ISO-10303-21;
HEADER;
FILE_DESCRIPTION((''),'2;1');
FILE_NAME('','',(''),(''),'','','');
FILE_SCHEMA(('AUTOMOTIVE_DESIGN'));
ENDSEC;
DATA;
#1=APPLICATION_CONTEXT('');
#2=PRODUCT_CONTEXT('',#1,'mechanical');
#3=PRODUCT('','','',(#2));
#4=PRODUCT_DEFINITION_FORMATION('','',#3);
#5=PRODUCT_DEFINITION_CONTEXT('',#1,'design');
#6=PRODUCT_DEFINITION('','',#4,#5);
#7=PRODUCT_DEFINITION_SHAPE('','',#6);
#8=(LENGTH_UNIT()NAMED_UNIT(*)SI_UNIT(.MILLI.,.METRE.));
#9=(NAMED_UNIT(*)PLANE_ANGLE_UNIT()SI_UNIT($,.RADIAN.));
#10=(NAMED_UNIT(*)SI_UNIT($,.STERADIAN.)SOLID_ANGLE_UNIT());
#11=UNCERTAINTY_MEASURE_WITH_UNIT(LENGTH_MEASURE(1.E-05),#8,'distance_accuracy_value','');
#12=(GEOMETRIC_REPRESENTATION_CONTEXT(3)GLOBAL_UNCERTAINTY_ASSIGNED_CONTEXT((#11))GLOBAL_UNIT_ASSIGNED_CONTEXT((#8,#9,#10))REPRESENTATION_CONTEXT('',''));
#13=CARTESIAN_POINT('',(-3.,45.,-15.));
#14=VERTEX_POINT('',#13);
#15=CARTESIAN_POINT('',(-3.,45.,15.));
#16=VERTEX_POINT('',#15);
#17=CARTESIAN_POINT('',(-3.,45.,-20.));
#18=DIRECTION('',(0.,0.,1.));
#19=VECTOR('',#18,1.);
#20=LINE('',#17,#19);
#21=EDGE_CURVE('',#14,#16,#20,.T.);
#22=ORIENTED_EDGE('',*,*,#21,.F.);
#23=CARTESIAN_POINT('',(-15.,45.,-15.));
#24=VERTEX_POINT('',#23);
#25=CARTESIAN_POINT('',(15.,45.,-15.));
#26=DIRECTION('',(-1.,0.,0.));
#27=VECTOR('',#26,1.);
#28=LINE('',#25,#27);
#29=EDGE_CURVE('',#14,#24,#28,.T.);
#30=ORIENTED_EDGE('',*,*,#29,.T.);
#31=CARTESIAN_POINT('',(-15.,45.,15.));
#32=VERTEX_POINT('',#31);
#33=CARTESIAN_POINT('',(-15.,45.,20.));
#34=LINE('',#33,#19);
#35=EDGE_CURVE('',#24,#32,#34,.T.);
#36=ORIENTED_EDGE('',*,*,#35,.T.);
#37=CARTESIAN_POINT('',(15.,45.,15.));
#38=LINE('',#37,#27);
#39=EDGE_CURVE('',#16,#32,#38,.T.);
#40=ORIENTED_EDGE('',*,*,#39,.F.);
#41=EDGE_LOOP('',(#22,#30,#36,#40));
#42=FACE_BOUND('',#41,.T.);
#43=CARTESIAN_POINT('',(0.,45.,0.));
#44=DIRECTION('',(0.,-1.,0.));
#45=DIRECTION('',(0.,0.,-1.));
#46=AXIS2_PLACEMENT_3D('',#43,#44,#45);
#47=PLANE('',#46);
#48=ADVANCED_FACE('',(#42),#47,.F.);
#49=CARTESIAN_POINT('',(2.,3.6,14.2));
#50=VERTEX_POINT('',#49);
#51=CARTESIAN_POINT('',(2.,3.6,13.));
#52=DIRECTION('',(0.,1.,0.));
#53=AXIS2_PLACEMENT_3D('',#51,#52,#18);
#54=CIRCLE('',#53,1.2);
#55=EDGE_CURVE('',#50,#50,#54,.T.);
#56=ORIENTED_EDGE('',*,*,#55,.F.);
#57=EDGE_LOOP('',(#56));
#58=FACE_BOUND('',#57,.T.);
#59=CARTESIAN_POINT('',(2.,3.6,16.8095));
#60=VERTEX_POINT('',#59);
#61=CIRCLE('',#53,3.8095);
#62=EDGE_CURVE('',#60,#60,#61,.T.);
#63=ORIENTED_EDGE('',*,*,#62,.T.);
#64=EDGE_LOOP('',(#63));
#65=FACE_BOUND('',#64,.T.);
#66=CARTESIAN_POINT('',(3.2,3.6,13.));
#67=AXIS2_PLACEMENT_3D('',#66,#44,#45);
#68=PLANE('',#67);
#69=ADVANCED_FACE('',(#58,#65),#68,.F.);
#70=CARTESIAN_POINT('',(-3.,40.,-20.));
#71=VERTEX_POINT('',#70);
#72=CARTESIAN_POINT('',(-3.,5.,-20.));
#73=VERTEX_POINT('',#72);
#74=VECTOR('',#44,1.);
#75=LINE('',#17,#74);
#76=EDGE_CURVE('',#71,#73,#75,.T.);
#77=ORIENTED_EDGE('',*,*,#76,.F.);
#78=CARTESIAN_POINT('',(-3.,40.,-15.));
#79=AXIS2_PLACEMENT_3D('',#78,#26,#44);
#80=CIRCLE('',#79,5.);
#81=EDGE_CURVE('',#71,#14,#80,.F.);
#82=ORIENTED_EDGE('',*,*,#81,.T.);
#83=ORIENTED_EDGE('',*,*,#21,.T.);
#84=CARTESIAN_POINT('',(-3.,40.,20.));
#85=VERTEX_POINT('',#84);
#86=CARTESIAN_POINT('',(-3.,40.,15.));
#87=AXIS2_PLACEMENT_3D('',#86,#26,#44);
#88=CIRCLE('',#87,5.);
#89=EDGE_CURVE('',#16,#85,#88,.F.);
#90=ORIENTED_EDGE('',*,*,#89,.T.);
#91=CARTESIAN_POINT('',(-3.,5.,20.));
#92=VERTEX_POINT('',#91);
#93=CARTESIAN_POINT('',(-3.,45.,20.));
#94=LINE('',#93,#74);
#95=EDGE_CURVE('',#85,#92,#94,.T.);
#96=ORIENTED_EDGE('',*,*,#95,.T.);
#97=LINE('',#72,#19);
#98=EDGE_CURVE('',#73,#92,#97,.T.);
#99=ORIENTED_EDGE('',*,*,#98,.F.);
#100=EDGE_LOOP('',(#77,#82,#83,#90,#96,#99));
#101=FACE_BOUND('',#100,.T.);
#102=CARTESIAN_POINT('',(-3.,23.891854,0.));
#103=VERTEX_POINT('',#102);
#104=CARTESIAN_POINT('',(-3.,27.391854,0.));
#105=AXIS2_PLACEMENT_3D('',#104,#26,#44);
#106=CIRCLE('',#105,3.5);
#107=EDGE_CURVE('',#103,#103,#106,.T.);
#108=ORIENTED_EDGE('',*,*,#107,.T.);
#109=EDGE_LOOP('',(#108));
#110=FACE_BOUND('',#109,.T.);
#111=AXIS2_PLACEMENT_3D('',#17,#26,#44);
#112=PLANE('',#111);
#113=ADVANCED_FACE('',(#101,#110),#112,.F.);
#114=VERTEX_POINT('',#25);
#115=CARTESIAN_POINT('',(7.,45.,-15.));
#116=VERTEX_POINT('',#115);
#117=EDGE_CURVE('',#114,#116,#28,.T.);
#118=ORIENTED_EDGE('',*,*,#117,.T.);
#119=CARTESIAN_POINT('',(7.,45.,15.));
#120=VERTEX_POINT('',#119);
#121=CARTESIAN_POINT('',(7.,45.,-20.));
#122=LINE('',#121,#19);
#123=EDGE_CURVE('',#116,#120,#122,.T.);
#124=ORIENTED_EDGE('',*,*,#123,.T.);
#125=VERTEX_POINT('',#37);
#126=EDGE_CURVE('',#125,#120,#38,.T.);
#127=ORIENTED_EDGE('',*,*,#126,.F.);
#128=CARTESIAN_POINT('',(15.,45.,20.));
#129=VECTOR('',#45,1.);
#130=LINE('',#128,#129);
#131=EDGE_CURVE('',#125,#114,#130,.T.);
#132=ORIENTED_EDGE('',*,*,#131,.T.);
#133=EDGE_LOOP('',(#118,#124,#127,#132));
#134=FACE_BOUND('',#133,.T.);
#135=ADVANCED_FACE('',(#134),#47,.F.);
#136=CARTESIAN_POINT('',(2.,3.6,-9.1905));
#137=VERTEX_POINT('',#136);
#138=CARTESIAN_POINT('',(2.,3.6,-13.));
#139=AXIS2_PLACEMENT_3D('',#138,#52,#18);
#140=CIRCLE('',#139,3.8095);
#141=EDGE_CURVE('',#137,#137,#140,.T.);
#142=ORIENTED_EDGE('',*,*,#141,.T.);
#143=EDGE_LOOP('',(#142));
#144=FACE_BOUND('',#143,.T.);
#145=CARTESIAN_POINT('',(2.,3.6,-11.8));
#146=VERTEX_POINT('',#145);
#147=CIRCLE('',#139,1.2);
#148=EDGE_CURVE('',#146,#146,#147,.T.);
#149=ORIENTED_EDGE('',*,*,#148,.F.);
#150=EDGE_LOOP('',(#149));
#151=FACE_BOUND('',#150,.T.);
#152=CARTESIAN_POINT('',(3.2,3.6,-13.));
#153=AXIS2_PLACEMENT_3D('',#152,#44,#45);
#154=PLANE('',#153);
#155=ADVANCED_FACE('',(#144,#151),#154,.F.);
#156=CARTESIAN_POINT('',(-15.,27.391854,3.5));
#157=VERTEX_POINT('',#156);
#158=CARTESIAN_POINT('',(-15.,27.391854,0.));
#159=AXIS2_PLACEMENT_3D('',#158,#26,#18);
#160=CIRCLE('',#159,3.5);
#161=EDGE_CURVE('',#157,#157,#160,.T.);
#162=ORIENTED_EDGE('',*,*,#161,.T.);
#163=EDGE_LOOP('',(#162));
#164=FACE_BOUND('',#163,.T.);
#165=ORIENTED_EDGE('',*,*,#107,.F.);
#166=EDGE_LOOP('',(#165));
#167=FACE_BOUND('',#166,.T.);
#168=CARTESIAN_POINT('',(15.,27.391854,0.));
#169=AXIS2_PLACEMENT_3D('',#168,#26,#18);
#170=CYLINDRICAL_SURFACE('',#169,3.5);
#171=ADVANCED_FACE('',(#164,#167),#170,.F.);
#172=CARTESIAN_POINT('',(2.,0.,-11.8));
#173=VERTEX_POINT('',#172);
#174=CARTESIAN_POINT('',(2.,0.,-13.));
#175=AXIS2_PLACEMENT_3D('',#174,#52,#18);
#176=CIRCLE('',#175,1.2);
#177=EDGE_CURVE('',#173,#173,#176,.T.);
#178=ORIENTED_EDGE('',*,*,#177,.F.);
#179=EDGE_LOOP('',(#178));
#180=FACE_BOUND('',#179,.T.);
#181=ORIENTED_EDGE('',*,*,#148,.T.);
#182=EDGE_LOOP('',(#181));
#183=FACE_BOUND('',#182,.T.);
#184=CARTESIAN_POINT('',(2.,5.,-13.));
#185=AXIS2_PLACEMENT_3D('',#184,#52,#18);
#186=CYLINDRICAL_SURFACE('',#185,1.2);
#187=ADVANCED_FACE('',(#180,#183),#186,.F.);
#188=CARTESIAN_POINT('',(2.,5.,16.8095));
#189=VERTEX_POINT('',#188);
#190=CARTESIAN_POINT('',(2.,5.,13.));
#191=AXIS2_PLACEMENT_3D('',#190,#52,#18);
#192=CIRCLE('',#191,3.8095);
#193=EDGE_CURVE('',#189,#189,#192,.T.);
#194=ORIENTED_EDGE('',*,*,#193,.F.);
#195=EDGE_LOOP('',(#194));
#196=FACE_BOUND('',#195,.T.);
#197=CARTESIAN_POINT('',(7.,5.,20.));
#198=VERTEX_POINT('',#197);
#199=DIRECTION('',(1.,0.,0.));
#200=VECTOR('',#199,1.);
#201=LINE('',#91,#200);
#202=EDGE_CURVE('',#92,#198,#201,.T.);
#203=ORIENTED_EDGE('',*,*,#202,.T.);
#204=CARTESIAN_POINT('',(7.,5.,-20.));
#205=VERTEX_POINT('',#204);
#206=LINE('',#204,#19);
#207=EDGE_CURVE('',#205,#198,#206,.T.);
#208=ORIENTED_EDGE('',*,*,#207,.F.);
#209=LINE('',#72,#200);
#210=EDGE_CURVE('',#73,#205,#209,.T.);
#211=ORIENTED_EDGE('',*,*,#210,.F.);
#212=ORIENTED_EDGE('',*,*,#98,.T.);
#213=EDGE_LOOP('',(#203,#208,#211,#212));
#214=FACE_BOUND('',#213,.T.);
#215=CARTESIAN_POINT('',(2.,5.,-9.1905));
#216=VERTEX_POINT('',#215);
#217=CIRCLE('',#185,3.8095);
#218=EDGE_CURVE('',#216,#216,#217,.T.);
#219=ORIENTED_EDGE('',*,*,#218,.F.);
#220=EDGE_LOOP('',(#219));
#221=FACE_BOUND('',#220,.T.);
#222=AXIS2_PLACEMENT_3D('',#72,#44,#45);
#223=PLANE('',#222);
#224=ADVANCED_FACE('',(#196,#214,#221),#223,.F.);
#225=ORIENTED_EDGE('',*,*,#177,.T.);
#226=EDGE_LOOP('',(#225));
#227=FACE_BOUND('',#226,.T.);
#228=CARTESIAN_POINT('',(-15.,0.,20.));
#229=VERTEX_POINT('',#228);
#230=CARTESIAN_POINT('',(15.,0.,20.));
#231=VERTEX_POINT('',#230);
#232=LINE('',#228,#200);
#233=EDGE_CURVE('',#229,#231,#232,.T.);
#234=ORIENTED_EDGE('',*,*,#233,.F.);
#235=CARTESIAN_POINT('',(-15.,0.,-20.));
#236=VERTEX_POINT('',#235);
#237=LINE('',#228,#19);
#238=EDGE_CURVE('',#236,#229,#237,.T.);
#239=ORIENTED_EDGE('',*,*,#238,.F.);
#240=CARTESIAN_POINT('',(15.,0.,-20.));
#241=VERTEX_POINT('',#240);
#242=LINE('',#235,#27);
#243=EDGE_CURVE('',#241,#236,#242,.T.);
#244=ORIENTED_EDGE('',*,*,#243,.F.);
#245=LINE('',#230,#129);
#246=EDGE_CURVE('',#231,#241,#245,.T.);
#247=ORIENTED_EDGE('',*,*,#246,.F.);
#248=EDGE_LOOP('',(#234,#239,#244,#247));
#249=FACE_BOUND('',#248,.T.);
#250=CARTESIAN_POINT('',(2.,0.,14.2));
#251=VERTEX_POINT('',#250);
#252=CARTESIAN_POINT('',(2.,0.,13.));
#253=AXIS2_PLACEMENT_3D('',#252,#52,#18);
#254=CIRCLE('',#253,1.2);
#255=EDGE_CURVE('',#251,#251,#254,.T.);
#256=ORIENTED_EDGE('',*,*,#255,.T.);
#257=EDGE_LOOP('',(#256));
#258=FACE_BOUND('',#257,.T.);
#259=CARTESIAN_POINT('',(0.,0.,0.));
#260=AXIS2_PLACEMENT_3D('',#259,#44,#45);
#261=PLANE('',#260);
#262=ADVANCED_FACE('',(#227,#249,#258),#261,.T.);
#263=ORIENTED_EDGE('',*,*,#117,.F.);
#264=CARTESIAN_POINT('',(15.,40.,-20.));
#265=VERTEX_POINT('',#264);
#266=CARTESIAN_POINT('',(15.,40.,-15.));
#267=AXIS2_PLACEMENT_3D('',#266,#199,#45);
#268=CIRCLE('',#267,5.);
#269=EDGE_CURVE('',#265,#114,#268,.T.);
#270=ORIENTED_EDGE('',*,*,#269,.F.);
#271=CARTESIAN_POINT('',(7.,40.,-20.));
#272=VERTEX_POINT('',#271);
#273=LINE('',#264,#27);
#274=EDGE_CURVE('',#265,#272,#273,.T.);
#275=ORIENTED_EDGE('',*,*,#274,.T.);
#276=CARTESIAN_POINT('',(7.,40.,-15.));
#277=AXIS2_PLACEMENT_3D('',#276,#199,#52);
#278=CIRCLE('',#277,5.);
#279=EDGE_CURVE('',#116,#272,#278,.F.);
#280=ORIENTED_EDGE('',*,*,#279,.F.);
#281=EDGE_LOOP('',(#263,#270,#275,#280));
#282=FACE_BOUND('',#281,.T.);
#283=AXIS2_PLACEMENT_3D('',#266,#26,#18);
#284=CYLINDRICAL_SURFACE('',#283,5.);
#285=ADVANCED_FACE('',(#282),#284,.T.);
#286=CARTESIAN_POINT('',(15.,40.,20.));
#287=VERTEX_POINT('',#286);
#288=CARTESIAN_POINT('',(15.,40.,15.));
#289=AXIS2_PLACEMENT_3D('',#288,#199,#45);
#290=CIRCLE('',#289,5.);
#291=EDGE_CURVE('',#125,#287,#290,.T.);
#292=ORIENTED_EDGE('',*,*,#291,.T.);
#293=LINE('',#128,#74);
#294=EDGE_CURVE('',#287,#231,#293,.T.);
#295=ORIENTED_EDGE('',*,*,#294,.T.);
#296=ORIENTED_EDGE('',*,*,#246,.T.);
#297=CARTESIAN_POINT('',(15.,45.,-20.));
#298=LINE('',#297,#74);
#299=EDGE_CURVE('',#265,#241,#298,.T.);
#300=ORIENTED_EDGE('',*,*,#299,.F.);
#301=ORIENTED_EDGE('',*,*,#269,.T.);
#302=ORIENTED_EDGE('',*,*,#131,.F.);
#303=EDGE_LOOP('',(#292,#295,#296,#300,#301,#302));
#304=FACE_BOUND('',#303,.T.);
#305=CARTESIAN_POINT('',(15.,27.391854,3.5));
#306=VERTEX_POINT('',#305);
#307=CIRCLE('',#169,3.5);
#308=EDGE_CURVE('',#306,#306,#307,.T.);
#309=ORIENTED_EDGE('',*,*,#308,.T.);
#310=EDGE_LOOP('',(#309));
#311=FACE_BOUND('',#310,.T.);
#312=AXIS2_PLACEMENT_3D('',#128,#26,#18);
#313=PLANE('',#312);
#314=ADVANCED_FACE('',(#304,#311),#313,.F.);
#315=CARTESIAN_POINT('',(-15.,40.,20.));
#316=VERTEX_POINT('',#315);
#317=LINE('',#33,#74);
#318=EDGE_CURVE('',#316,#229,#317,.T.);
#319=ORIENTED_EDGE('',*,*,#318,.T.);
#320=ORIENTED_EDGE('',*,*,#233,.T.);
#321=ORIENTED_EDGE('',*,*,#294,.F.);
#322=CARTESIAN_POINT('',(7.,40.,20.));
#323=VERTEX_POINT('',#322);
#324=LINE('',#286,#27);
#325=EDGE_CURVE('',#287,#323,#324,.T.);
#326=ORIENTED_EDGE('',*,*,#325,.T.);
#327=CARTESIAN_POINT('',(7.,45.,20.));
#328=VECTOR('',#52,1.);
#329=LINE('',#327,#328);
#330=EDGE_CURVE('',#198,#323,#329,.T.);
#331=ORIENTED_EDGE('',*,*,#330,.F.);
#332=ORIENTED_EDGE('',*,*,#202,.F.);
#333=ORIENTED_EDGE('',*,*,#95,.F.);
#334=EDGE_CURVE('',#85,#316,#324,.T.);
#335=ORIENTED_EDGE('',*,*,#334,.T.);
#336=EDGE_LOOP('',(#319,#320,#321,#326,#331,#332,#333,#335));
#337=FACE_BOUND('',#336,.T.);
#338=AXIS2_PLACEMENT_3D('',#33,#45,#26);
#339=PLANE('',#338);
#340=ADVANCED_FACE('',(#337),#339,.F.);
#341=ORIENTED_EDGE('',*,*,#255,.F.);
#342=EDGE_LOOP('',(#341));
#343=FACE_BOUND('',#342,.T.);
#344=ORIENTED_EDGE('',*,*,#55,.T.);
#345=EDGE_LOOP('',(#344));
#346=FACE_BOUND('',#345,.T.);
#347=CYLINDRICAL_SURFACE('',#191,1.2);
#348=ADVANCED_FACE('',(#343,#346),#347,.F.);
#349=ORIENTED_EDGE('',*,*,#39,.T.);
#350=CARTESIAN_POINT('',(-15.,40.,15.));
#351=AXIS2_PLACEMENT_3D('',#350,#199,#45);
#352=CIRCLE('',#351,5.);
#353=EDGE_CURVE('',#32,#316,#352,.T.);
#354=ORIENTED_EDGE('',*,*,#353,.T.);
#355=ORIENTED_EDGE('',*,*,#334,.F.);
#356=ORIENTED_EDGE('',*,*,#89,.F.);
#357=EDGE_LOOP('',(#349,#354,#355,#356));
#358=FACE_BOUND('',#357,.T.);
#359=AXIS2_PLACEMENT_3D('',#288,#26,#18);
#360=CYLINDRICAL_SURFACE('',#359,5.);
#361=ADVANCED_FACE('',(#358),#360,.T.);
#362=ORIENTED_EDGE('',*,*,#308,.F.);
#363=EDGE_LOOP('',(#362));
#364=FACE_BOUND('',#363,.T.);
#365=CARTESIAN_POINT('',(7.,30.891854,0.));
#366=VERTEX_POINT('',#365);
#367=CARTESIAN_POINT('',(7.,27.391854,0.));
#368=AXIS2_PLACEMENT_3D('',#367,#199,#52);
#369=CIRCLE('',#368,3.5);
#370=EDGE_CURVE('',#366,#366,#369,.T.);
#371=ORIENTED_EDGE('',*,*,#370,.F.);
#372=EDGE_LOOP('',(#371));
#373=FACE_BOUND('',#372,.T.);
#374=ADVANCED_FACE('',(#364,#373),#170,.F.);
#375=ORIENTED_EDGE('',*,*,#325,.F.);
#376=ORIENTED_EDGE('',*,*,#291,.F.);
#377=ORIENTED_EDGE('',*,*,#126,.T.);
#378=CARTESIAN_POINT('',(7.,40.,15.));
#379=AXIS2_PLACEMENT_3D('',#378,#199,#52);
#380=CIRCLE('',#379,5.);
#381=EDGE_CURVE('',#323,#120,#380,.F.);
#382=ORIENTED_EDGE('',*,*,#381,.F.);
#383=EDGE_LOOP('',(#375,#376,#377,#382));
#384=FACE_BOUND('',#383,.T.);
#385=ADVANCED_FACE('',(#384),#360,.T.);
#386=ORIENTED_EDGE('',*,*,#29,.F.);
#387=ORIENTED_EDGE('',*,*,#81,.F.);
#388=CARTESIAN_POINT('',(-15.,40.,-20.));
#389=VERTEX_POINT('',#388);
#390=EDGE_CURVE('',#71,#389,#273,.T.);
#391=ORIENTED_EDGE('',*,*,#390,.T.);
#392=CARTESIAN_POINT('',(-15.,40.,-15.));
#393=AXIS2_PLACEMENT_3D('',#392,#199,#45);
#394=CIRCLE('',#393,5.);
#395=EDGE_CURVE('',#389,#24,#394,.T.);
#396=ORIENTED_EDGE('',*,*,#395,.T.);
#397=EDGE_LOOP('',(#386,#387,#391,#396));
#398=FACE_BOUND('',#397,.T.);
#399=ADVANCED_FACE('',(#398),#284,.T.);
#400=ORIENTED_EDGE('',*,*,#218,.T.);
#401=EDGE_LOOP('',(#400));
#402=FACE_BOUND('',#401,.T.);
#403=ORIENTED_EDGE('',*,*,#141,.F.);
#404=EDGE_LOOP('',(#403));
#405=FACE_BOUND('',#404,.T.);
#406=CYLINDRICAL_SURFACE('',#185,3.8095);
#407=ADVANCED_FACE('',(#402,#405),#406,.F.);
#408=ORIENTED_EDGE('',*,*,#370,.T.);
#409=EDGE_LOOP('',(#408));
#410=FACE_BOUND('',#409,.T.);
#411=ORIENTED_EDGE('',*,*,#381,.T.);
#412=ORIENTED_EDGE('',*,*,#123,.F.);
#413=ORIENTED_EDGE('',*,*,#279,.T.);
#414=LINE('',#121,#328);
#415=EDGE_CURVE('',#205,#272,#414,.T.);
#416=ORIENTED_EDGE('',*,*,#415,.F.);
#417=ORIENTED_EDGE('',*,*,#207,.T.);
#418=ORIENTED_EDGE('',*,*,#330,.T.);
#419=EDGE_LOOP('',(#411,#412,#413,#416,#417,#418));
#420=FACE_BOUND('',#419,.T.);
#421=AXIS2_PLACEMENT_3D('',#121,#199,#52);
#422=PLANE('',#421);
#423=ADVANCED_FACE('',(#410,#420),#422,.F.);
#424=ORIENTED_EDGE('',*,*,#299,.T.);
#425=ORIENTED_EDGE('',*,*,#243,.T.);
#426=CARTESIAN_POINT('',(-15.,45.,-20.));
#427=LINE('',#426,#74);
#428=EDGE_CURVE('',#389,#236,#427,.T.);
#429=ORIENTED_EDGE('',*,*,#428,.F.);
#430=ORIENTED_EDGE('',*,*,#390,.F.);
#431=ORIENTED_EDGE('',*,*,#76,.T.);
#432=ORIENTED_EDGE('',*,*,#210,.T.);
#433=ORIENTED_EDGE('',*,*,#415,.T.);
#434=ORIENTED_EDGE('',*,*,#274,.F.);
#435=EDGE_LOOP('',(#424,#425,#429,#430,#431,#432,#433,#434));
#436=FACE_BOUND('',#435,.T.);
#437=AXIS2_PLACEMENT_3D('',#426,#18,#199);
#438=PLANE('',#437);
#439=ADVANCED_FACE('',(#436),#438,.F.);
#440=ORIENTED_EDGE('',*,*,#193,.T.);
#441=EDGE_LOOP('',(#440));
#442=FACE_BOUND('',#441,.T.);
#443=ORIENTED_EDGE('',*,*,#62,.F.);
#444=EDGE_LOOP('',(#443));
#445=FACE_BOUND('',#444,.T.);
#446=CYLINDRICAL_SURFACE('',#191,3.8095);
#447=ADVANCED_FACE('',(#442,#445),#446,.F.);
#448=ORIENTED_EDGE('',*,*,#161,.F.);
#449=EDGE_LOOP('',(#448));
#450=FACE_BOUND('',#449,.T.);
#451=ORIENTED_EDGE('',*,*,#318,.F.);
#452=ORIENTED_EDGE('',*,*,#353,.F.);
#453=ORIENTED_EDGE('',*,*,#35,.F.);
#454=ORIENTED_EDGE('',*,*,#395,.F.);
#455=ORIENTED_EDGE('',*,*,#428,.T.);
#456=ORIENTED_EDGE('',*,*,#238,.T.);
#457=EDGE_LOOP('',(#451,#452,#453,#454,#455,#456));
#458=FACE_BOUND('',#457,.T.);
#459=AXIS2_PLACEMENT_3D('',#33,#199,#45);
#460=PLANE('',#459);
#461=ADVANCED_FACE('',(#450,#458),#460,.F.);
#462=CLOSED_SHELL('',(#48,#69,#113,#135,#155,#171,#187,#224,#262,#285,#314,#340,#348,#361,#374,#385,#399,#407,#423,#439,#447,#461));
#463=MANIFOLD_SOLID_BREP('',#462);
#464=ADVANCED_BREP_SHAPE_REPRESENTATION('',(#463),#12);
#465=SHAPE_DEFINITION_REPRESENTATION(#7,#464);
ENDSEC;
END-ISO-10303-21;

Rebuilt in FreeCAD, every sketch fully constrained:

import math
import FreeCAD as App
import Part
import Sketcher
Q = App.Units.Quantity


def add_polygon(sketch, points):
    """Adds a closed chain of lines whose ends are joined by coincident constraints."""
    first, n = sketch.GeometryCount, len(points)
    for a, b in zip(points, points[1:] + points[:1]):
        sketch.addGeometry(Part.LineSegment(App.Vector(*a, 0), App.Vector(*b, 0)), False)
    for i in range(n):
        sketch.addConstraint(Sketcher.Constraint("Coincident", first + i, 2, first + (i + 1) % n, 1))

doc = App.newDocument("Part")
body = doc.addObject("PartDesign::Body", "Body")

# Sketch on XZ plane
sketch1 = body.newObject("Sketcher::SketchObject", "Sketch")
sketch1.AttachmentSupport = (doc.getObject("XZ_Plane"), [""])
sketch1.MapMode = "FlatFace"
add_polygon(sketch1, [(-15, -20), (-15, 20), (15, 20), (15, -20)])  # lines 0-3
sketch1.addConstraint([
    Sketcher.Constraint("Vertical", 0),
    Sketcher.Constraint("Horizontal", 1),
    Sketcher.Constraint("Vertical", 2),
    Sketcher.Constraint("Horizontal", 3),
    Sketcher.Constraint("Symmetric", 0, 2, 2, 2, -1, 1),
    Sketcher.Constraint("DistanceX", 1, 1, 1, 2, Q("30 mm")),
    Sketcher.Constraint("DistanceY", 0, 1, 0, 2, Q("40 mm")),
])
pad1 = body.newObject("PartDesign::Pad", "Pad")
pad1.Profile = sketch1
pad1.Length = 45
pad1.Reversed = True

# Sketch on XY plane
sketch2 = body.newObject("Sketcher::SketchObject", "Sketch001")
sketch2.AttachmentSupport = (doc.getObject("XY_Plane"), [""])
sketch2.MapMode = "FlatFace"
sketch2.AttachmentOffset = App.Placement(App.Vector(0, 0, 20), App.Rotation())
add_polygon(sketch2, [(-3, 45), (-3, 5), (7, 5), (7, 45)])  # lines 0-3
sketch2.addConstraint([
    Sketcher.Constraint("Vertical", 0),
    Sketcher.Constraint("Horizontal", 1),
    Sketcher.Constraint("Vertical", 2),
    Sketcher.Constraint("Horizontal", 3),
    Sketcher.Constraint("DistanceX", 1, 1, 1, 2, Q("10 mm")),
    Sketcher.Constraint("DistanceY", 0, 2, 0, 1, Q("40 mm")),
    Sketcher.Constraint("DistanceX", 0, 2, -1, 1, Q("3 mm")),
    Sketcher.Constraint("DistanceY", -1, 1, 0, 2, Q("5 mm")),
])
pocket1 = body.newObject("PartDesign::Pocket", "Pocket")
pocket1.Profile = sketch2
pocket1.Type = "ThroughAll"

# Sketch on YZ plane
sketch3 = body.newObject("Sketcher::SketchObject", "Sketch002")
sketch3.AttachmentSupport = (doc.getObject("YZ_Plane"), [""])
sketch3.MapMode = "FlatFace"
sketch3.AttachmentOffset = App.Placement(App.Vector(0, 0, -15), App.Rotation())
sketch3.addGeometry(Part.Circle(App.Vector(27.4, 0, 0), App.Vector(0, 0, 1), 3.5), False)
sketch3.addConstraint([
    Sketcher.Constraint("PointOnObject", 0, 3, -1),
    Sketcher.Constraint("Diameter", 0, Q("7 mm")),
    Sketcher.Constraint("DistanceX", -1, 1, 0, 3, Q("27.391854 mm")),
])
pocket2 = body.newObject("PartDesign::Pocket", "Pocket001")
pocket2.Profile = sketch3
pocket2.Type = "ThroughAll"
pocket2.Reversed = True

# Sketch on YZ plane
sketch4 = body.newObject("Sketcher::SketchObject", "Sketch003")
sketch4.AttachmentSupport = (doc.getObject("YZ_Plane"), [""])
sketch4.MapMode = "FlatFace"
sketch4.AttachmentOffset = App.Placement(App.Vector(0, 0, -15), App.Rotation())
sketch4.addGeometry([
    Part.LineSegment(App.Vector(45, -15, 0), App.Vector(45, -20, 0)),  # 0
    Part.LineSegment(App.Vector(45, -20, 0), App.Vector(40, -20, 0)),  # 1
    Part.ArcOfCircle(Part.Circle(App.Vector(40, -15, 0), App.Vector(0, 0, 1), 5), math.radians(-90), math.radians(0)),  # 2
    Part.LineSegment(App.Vector(45, 20, 0), App.Vector(45, 15, 0)),  # 3
    Part.ArcOfCircle(Part.Circle(App.Vector(40, 15, 0), App.Vector(0, 0, 1), 5), math.radians(0), math.radians(90)),  # 4
    Part.LineSegment(App.Vector(40, 20, 0), App.Vector(45, 20, 0)),  # 5
], False)
sketch4.addConstraint([
    Sketcher.Constraint("Coincident", 0, 2, 1, 1),
    Sketcher.Constraint("Tangent", 1, 2, 2, 1),
    Sketcher.Constraint("Tangent", 2, 2, 0, 1),
    Sketcher.Constraint("Tangent", 3, 2, 4, 1),
    Sketcher.Constraint("Tangent", 4, 2, 5, 1),
    Sketcher.Constraint("Coincident", 5, 2, 3, 1),
    Sketcher.Constraint("Vertical", 0),
    Sketcher.Constraint("Horizontal", 1),
    Sketcher.Constraint("Vertical", 3),
    Sketcher.Constraint("Horizontal", 5),
    Sketcher.Constraint("Equal", 2, 4),
    Sketcher.Constraint("Symmetric", 2, 3, 4, 3, -1),
    Sketcher.Constraint("Radius", 2, Q("5 mm")),
    Sketcher.Constraint("DistanceX", -1, 1, 2, 3, Q("40 mm")),
    Sketcher.Constraint("DistanceY", 2, 3, -1, 1, Q("15 mm")),
])
pocket3 = body.newObject("PartDesign::Pocket", "Pocket002")
pocket3.Profile = sketch4
pocket3.Type = "ThroughAll"
pocket3.Reversed = True

# Sketch on XZ plane
sketch5 = body.newObject("Sketcher::SketchObject", "Sketch004")
sketch5.AttachmentSupport = (doc.getObject("XZ_Plane"), [""])
sketch5.MapMode = "FlatFace"
sketch5.AttachmentOffset = App.Placement(App.Vector(0, 0, -5), App.Rotation())
sketch5.addGeometry([
    Part.Circle(App.Vector(2, 13, 0), App.Vector(0, 0, 1), 1.2),
    Part.Circle(App.Vector(2, -13, 0), App.Vector(0, 0, 1), 1.2),
], False)
sketch5.addConstraint([
    Sketcher.Constraint("Equal", 0, 1),
    Sketcher.Constraint("Symmetric", 0, 3, 1, 3, -1),
    Sketcher.Constraint("Diameter", 0, Q("2.4 mm")),
    Sketcher.Constraint("DistanceX", -1, 1, 0, 3, Q("2 mm")),
    Sketcher.Constraint("DistanceY", -1, 1, 0, 3, Q("13 mm")),
])
doc.recompute()
hole = body.newObject("PartDesign::Hole", "Hole")
hole.Profile = sketch5
hole.ThreadType = "None"
hole.Diameter = 2.4
hole.DepthType = "ThroughAll"
hole.HoleCutType = "Counterbore"
hole.HoleCutDiameter = 7.619
hole.HoleCutDepth = 1.4
hole.Reversed = True

doc.recompute()
